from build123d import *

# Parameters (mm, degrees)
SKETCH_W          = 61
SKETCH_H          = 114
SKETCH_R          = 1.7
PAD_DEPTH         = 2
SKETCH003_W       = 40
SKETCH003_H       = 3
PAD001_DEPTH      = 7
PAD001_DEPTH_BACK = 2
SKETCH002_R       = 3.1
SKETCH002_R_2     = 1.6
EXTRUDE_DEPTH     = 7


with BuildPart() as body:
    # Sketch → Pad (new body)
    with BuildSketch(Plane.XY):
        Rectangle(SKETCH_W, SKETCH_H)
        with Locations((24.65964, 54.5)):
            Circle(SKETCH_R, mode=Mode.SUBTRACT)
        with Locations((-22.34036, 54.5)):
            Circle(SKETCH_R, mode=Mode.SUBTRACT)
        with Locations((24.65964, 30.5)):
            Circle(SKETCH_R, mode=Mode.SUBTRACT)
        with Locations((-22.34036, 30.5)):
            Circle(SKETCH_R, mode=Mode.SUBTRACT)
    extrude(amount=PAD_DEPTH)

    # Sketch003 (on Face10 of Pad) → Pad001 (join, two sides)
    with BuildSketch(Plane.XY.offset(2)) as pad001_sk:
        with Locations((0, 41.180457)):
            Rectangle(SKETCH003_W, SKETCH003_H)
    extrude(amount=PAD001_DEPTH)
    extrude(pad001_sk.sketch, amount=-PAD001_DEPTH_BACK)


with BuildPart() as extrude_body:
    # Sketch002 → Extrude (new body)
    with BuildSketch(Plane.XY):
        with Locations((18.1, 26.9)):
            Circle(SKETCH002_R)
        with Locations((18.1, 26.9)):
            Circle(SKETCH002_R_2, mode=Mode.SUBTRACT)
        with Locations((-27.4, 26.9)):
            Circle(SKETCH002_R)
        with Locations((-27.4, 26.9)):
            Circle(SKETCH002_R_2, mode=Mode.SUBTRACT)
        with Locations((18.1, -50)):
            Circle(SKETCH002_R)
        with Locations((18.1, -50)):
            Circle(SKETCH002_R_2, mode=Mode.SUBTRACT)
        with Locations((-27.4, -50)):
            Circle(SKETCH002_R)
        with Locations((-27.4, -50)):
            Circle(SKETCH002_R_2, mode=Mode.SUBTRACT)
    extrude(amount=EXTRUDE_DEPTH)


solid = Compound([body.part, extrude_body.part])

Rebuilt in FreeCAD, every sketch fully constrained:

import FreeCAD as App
import Part
import Sketcher
Q = App.Units.Quantity

doc = App.newDocument("Part")
body = doc.addObject("PartDesign::Body", "Body")

# Sketch on XY plane
sketch1 = doc.addObject("Sketcher::SketchObject", "Sketch")
body.addObject(sketch1)
sketch1.AttachmentSupport = (doc.XY_Plane, [""])
sketch1.MapMode = "FlatFace"
sketch1.addGeometry([
    Part.LineSegment(App.Vector(-30.5, 57, 0), App.Vector(-30.5, -57, 0)),  # 0
    Part.LineSegment(App.Vector(-30.5, -57, 0), App.Vector(30.5, -57, 0)),  # 1
    Part.LineSegment(App.Vector(30.5, -57, 0), App.Vector(30.5, 57, 0)),  # 2
    Part.LineSegment(App.Vector(30.5, 57, 0), App.Vector(-30.5, 57, 0)),  # 3
    Part.Circle(App.Vector(-22.3, 30.5, 0), App.Vector(0, 0, 1), 1.7),  # 4
    Part.Circle(App.Vector(24.7, 30.5, 0), App.Vector(0, 0, 1), 1.7),  # 5
    Part.Circle(App.Vector(-22.3, 54.5, 0), App.Vector(0, 0, 1), 1.7),  # 6
    Part.Circle(App.Vector(24.7, 54.5, 0), App.Vector(0, 0, 1), 1.7),  # 7
], False)
sketch1.addConstraint([
    Sketcher.Constraint("Coincident", 0, 2, 1, 1),
    Sketcher.Constraint("Coincident", 1, 2, 2, 1),
    Sketcher.Constraint("Coincident", 2, 2, 3, 1),
    Sketcher.Constraint("Coincident", 3, 2, 0, 1),
    Sketcher.Constraint("Vertical", 0),
    Sketcher.Constraint("Horizontal", 1),
    Sketcher.Constraint("Vertical", 2),
    Sketcher.Constraint("Horizontal", 3),
    Sketcher.Constraint("Equal", 4, 5),
    Sketcher.Constraint("Equal", 5, 6),
    Sketcher.Constraint("Equal", 6, 7),
    Sketcher.Constraint("Symmetric", 0, 2, 2, 2, -1, 1),
    Sketcher.Constraint("Horizontal", 4, 3, 5, 3),
    Sketcher.Constraint("Horizontal", 6, 3, 7, 3),
    Sketcher.Constraint("Vertical", 4, 3, 6, 3),
    Sketcher.Constraint("Vertical", 5, 3, 7, 3),
    Sketcher.Constraint("Diameter", 4, Q("3.4 mm")),
    Sketcher.Constraint("DistanceX", 1, 1, 1, 2, Q("61 mm")),
    Sketcher.Constraint("DistanceY", 0, 2, 0, 1, Q("114 mm")),
    Sketcher.Constraint("DistanceX", 4, 3, 5, 3, Q("47 mm")),
    Sketcher.Constraint("DistanceY", 4, 3, 6, 3, Q("24 mm")),
    Sketcher.Constraint("DistanceY", -1, 1, 4, 3, Q("30.5 mm")),
    Sketcher.Constraint("DistanceX", 4, 3, -1, 1, Q("22.34036 mm")),
])
pad1 = doc.addObject("PartDesign::Pad", "Pad")
body.addObject(pad1)
pad1.Profile = sketch1
pad1.Length = 2

# Sketch on XY plane
sketch2 = doc.addObject("Sketcher::SketchObject", "Sketch001")
body.addObject(sketch2)
sketch2.AttachmentSupport = (doc.XY_Plane, [""])
sketch2.MapMode = "FlatFace"
sketch2.AttachmentOffset = App.Placement(App.Vector(0, 0, 2), App.Rotation())
sketch2.addGeometry([
    Part.LineSegment(App.Vector(-20, 42.7, 0), App.Vector(-20, 39.7, 0)),
    Part.LineSegment(App.Vector(-20, 39.7, 0), App.Vector(20, 39.7, 0)),
    Part.LineSegment(App.Vector(20, 39.7, 0), App.Vector(20, 42.7, 0)),
    Part.LineSegment(App.Vector(20, 42.7, 0), App.Vector(-20, 42.7, 0)),
], False)
sketch2.addConstraint([
    Sketcher.Constraint("Coincident", 0, 2, 1, 1),
    Sketcher.Constraint("Coincident", 1, 2, 2, 1),
    Sketcher.Constraint("Coincident", 2, 2, 3, 1),
    Sketcher.Constraint("Coincident", 3, 2, 0, 1),
    Sketcher.Constraint("Vertical", 0),
    Sketcher.Constraint("Horizontal", 1),
    Sketcher.Constraint("Vertical", 2),
    Sketcher.Constraint("Horizontal", 3),
    Sketcher.Constraint("DistanceX", 1, 1, 1, 2, Q("40 mm")),
    Sketcher.Constraint("DistanceY", 0, 2, 0, 1, Q("3 mm")),
    Sketcher.Constraint("DistanceX", 0, 2, -1, 1, Q("20 mm")),
    Sketcher.Constraint("DistanceY", -1, 1, 0, 2, Q("39.680457 mm")),
])
pad2 = doc.addObject("PartDesign::Pad", "Pad001")
body.addObject(pad2)
pad2.Profile = sketch2
pad2.Type = "TwoLengths"
pad2.Length = 7
pad2.Length2 = 2
body2 = doc.addObject("PartDesign::Body", "Body001")
body2.AllowCompound = True

# Sketch on XY plane
sketch3 = doc.addObject("Sketcher::SketchObject", "Sketch002")
body2.addObject(sketch3)
sketch3.AttachmentSupport = (doc.getObject("XY_Plane001"), [""])
sketch3.MapMode = "FlatFace"
sketch3.addGeometry([
    Part.Circle(App.Vector(18.1, 26.9, 0), App.Vector(0, 0, 1), 3.1),  # 0
    Part.Circle(App.Vector(18.1, 26.9, 0), App.Vector(0, 0, 1), 1.6),  # 1
    Part.Circle(App.Vector(-27.4, 26.9, 0), App.Vector(0, 0, 1), 3.1),  # 2
    Part.Circle(App.Vector(-27.4, 26.9, 0), App.Vector(0, 0, 1), 1.6),  # 3
    Part.Circle(App.Vector(18.1, -50, 0), App.Vector(0, 0, 1), 3.1),  # 4
    Part.Circle(App.Vector(18.1, -50, 0), App.Vector(0, 0, 1), 1.6),  # 5
    Part.Circle(App.Vector(-27.4, -50, 0), App.Vector(0, 0, 1), 3.1),  # 6
    Part.Circle(App.Vector(-27.4, -50, 0), App.Vector(0, 0, 1), 1.6),  # 7
], False)
sketch3.addConstraint([
    Sketcher.Constraint("Coincident", 1, 3, 0, 3),
    Sketcher.Constraint("Coincident", 3, 3, 2, 3),
    Sketcher.Constraint("Coincident", 5, 3, 4, 3),
    Sketcher.Constraint("Coincident", 7, 3, 6, 3),
    Sketcher.Constraint("Equal", 0, 2),
    Sketcher.Constraint("Equal", 1, 3),
    Sketcher.Constraint("Equal", 2, 4),
    Sketcher.Constraint("Equal", 3, 5),
    Sketcher.Constraint("Equal", 4, 6),
    Sketcher.Constraint("Equal", 5, 7),
    Sketcher.Constraint("Horizontal", 1, 3, 2, 3),
    Sketcher.Constraint("Horizontal", 5, 3, 6, 3),
    Sketcher.Constraint("Vertical", 1, 3, 4, 3),
    Sketcher.Constraint("Vertical", 3, 3, 6, 3),
    Sketcher.Constraint("Diameter", 0, Q("6.2 mm")),
    Sketcher.Constraint("Diameter", 1, Q("3.2 mm")),
    Sketcher.Constraint("DistanceY", 4, 3, -1, 1, Q("50 mm")),
    Sketcher.Constraint("DistanceX", -1, 1, 0, 3, Q("18.1 mm")),
    Sketcher.Constraint("DistanceY", -1, 1, 0, 3, Q("26.9 mm")),
    Sketcher.Constraint("DistanceX", 2, 3, -1, 1, Q("27.4 mm")),
])
pad3 = doc.addObject("PartDesign::Pad", "Pad002")
body2.addObject(pad3)
pad3.Profile = sketch3
pad3.Length = 7

doc.recompute()
